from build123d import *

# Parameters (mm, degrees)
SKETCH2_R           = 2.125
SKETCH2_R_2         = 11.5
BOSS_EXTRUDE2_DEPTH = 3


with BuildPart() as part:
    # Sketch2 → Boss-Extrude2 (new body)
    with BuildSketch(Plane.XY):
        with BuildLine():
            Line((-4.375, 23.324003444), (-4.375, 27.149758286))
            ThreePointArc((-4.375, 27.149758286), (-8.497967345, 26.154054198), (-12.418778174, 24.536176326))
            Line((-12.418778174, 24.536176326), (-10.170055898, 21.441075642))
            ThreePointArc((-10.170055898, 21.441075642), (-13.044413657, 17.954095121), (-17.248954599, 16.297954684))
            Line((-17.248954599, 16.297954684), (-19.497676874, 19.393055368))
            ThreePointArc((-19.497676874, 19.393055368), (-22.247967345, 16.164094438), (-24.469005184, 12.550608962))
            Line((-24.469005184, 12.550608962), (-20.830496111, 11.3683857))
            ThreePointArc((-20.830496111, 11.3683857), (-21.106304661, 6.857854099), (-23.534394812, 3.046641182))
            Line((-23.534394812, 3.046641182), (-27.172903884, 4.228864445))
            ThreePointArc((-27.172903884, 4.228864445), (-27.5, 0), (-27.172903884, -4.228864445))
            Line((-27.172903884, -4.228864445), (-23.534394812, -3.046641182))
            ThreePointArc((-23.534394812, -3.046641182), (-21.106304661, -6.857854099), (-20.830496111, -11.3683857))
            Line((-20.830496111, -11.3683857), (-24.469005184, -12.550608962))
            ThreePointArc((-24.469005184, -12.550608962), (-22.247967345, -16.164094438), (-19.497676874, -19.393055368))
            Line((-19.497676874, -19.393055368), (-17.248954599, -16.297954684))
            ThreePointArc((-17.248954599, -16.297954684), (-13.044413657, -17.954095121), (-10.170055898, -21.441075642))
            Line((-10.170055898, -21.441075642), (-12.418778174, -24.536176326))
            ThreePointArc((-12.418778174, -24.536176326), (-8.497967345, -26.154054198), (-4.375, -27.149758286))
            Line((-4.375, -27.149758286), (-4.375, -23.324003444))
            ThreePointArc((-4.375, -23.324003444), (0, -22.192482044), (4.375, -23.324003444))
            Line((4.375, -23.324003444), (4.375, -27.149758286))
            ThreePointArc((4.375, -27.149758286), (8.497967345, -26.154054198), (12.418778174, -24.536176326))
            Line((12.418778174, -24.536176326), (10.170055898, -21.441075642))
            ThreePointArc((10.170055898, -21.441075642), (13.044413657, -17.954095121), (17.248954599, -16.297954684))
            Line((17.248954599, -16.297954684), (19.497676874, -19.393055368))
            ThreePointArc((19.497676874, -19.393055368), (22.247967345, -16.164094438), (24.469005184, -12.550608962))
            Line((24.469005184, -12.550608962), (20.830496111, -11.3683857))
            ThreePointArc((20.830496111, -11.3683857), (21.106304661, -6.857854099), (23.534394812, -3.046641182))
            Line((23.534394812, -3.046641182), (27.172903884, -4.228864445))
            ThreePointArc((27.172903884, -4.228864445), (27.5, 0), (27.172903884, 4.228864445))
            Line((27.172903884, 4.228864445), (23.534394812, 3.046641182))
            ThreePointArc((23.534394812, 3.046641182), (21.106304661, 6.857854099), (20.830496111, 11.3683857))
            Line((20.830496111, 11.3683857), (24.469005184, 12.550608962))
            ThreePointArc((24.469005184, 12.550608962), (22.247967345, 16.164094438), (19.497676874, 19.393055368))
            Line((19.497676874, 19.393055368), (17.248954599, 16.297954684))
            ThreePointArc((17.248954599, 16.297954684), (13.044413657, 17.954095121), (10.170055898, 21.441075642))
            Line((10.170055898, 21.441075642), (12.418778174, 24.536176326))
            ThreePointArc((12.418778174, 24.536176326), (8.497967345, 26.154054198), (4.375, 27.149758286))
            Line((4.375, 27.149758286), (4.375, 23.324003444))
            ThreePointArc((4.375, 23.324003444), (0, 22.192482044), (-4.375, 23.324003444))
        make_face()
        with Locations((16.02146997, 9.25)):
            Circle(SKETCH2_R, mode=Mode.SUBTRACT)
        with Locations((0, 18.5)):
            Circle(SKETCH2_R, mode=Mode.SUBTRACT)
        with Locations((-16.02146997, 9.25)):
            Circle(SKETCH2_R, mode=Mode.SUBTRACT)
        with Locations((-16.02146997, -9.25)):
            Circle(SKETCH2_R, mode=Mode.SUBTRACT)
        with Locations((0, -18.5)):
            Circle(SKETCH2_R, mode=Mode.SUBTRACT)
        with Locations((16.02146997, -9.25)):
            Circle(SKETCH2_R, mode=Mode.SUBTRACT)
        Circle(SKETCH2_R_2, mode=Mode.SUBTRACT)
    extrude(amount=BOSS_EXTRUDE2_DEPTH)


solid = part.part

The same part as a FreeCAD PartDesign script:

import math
import FreeCAD as App
import Part
import Sketcher
Q = App.Units.Quantity

doc = App.newDocument("Part")
body = doc.addObject("PartDesign::Body", "Body")

sketch1 = doc.addObject("Sketcher::SketchObject", "Sketch")
body.addObject(sketch1)
sketch1.AttachmentSupport = (doc.XY_Plane, [""])
sketch1.MapMode = "FlatFace"
sketch1.addGeometry([
    Part.LineSegment(App.Vector(-4.375, 23.324003, 0), App.Vector(-4.375, 27.149758, 0)),
    Part.ArcOfCircle(Part.Circle(App.Vector(0, 0, 0), App.Vector(0, 0, 1), 27.5), math.radians(99.154133), math.radians(116.845867)),
    Part.LineSegment(App.Vector(-12.418778, 24.536176, 0), App.Vector(-10.170056, 21.441076, 0)),
    Part.ArcOfCircle(Part.Circle(App.Vector(-18.348398, 25.254403, 0), App.Vector(0, 0, 1), 9.023676), math.radians(-83.001705), math.radians(-24.998295)),
    Part.LineSegment(App.Vector(-17.248955, 16.297955, 0), App.Vector(-19.497677, 19.393055, 0)),
    Part.ArcOfCircle(Part.Circle(App.Vector(0, 0, 0), App.Vector(0, 0, 1), 27.5), math.radians(135.154133), math.radians(152.845867)),
    Part.LineSegment(App.Vector(-24.469005, 12.550609, 0), App.Vector(-20.830496, 11.368386, 0)),
    Part.ArcOfCircle(Part.Circle(App.Vector(-29.688331, 9.646323, 0), App.Vector(0, 0, 1), 9.023676), math.radians(-47.001705), math.radians(11.001705)),
    Part.LineSegment(App.Vector(-23.534395, 3.046641, 0), App.Vector(-27.172904, 4.228864, 0)),
    Part.ArcOfCircle(Part.Circle(App.Vector(0, 0, 0), App.Vector(0, 0, 1), 27.5), math.radians(171.154133), math.radians(188.845867)),
    Part.LineSegment(App.Vector(-27.172904, -4.228864, 0), App.Vector(-23.534395, -3.046641, 0)),
    Part.ArcOfCircle(Part.Circle(App.Vector(-29.688331, -9.646323, 0), App.Vector(0, 0, 1), 9.023676), math.radians(-11.001705), math.radians(47.001705)),
    Part.LineSegment(App.Vector(-20.830496, -11.368386, 0), App.Vector(-24.469005, -12.550609, 0)),
    Part.ArcOfCircle(Part.Circle(App.Vector(0, 0, 0), App.Vector(0, 0, 1), 27.5), math.radians(-152.845867), math.radians(-135.154133)),
    Part.LineSegment(App.Vector(-19.497677, -19.393055, 0), App.Vector(-17.248955, -16.297955, 0)),
    Part.ArcOfCircle(Part.Circle(App.Vector(-18.348398, -25.254403, 0), App.Vector(0, 0, 1), 9.023676), math.radians(24.998295), math.radians(83.001705)),
    Part.LineSegment(App.Vector(-10.170056, -21.441076, 0), App.Vector(-12.418778, -24.536176, 0)),
    Part.ArcOfCircle(Part.Circle(App.Vector(0, 0, 0), App.Vector(0, 0, 1), 27.5), math.radians(-116.845867), math.radians(-99.154133)),
    Part.LineSegment(App.Vector(-4.375, -27.149758, 0), App.Vector(-4.375, -23.324003, 0)),
    Part.ArcOfCircle(Part.Circle(App.Vector(0, -31.216158, 0), App.Vector(0, 0, 1), 9.023676), math.radians(60.998295), math.radians(119.001705)),
    Part.LineSegment(App.Vector(4.375, -23.324003, 0), App.Vector(4.375, -27.149758, 0)),
    Part.ArcOfCircle(Part.Circle(App.Vector(0, 0, 0), App.Vector(0, 0, 1), 27.5), math.radians(-80.845867), math.radians(-63.154133)),
    Part.LineSegment(App.Vector(12.418778, -24.536176, 0), App.Vector(10.170056, -21.441076, 0)),
    Part.ArcOfCircle(Part.Circle(App.Vector(18.348398, -25.254403, 0), App.Vector(0, 0, 1), 9.023676), math.radians(96.998295), math.radians(155.001705)),
    Part.LineSegment(App.Vector(17.248955, -16.297955, 0), App.Vector(19.497677, -19.393055, 0)),
    Part.ArcOfCircle(Part.Circle(App.Vector(0, 0, 0), App.Vector(0, 0, 1), 27.5), math.radians(-44.845867), math.radians(-27.154133)),
    Part.LineSegment(App.Vector(24.469005, -12.550609, 0), App.Vector(20.830496, -11.368386, 0)),
    Part.ArcOfCircle(Part.Circle(App.Vector(29.688331, -9.646323, 0), App.Vector(0, 0, 1), 9.023676), math.radians(132.998295), math.radians(191.001705)),
    Part.LineSegment(App.Vector(23.534395, -3.046641, 0), App.Vector(27.172904, -4.228864, 0)),
    Part.ArcOfCircle(Part.Circle(App.Vector(0, 0, 0), App.Vector(0, 0, 1), 27.5), math.radians(-8.845867), math.radians(8.845867)),
    Part.LineSegment(App.Vector(27.172904, 4.228864, 0), App.Vector(23.534395, 3.046641, 0)),
    Part.ArcOfCircle(Part.Circle(App.Vector(29.688331, 9.646323, 0), App.Vector(0, 0, 1), 9.023676), math.radians(168.998295), math.radians(227.001705)),
    Part.LineSegment(App.Vector(20.830496, 11.368386, 0), App.Vector(24.469005, 12.550609, 0)),
    Part.ArcOfCircle(Part.Circle(App.Vector(0, 0, 0), App.Vector(0, 0, 1), 27.5), math.radians(27.154133), math.radians(44.845867)),
    Part.LineSegment(App.Vector(19.497677, 19.393055, 0), App.Vector(17.248955, 16.297955, 0)),
    Part.ArcOfCircle(Part.Circle(App.Vector(18.348398, 25.254403, 0), App.Vector(0, 0, 1), 9.023676), math.radians(-155.001705), math.radians(-96.998295)),
    Part.LineSegment(App.Vector(10.170056, 21.441076, 0), App.Vector(12.418778, 24.536176, 0)),
    Part.ArcOfCircle(Part.Circle(App.Vector(0, 0, 0), App.Vector(0, 0, 1), 27.5), math.radians(63.154133), math.radians(80.845867)),
    Part.LineSegment(App.Vector(4.375, 27.149758, 0), App.Vector(4.375, 23.324003, 0)),
    Part.ArcOfCircle(Part.Circle(App.Vector(0, 31.216158, 0), App.Vector(0, 0, 1), 9.023676), math.radians(-119.001705), math.radians(-60.998295)),
    Part.Circle(App.Vector(-16.02147, -9.25, 0), App.Vector(0, 0, 1), 2.125),
    Part.Circle(App.Vector(0, -18.5, 0), App.Vector(0, 0, 1), 2.125),
    Part.Circle(App.Vector(16.02147, -9.25, 0), App.Vector(0, 0, 1), 2.125),
    Part.Circle(App.Vector(-16.02147, 9.25, 0), App.Vector(0, 0, 1), 2.125),
    Part.Circle(App.Vector(0, 0, 0), App.Vector(0, 0, 1), 11.5),
    Part.Circle(App.Vector(16.02147, 9.25, 0), App.Vector(0, 0, 1), 2.125),
    Part.Circle(App.Vector(0, 18.5, 0), App.Vector(0, 0, 1), 2.125),
], False)
sketch1.addConstraint([
    Sketcher.Constraint("Coincident", 0, 2, 1, 1),
    Sketcher.Constraint("Coincident", 1, 2, 2, 1),
    Sketcher.Constraint("Coincident", 2, 2, 3, 2),
    Sketcher.Constraint("Coincident", 3, 1, 4, 1),
    Sketcher.Constraint("Coincident", 4, 2, 5, 1),
    Sketcher.Constraint("Coincident", 5, 2, 6, 1),
    Sketcher.Constraint("Coincident", 6, 2, 7, 2),
    Sketcher.Constraint("Coincident", 7, 1, 8, 1),
    Sketcher.Constraint("Coincident", 8, 2, 9, 1),
    Sketcher.Constraint("Coincident", 9, 2, 10, 1),
    Sketcher.Constraint("Coincident", 10, 2, 11, 2),
    Sketcher.Constraint("Coincident", 11, 1, 12, 1),
    Sketcher.Constraint("Coincident", 12, 2, 13, 1),
    Sketcher.Constraint("Coincident", 13, 2, 14, 1),
    Sketcher.Constraint("Coincident", 14, 2, 15, 2),
    Sketcher.Constraint("Coincident", 15, 1, 16, 1),
    Sketcher.Constraint("Coincident", 16, 2, 17, 1),
    Sketcher.Constraint("Coincident", 17, 2, 18, 1),
    Sketcher.Constraint("Coincident", 18, 2, 19, 2),
    Sketcher.Constraint("Coincident", 19, 1, 20, 1),
    Sketcher.Constraint("Coincident", 20, 2, 21, 1),
    Sketcher.Constraint("Coincident", 21, 2, 22, 1),
    Sketcher.Constraint("Coincident", 22, 2, 23, 2),
    Sketcher.Constraint("Coincident", 23, 1, 24, 1),
    Sketcher.Constraint("Coincident", 24, 2, 25, 1),
    Sketcher.Constraint("Coincident", 25, 2, 26, 1),
    Sketcher.Constraint("Coincident", 26, 2, 27, 2),
    Sketcher.Constraint("Coincident", 27, 1, 28, 1),
    Sketcher.Constraint("Coincident", 28, 2, 29, 1),
    Sketcher.Constraint("Coincident", 29, 2, 30, 1),
    Sketcher.Constraint("Coincident", 30, 2, 31, 2),
    Sketcher.Constraint("Coincident", 31, 1, 32, 1),
    Sketcher.Constraint("Coincident", 32, 2, 33, 1),
    Sketcher.Constraint("Coincident", 33, 2, 34, 1),
    Sketcher.Constraint("Coincident", 34, 2, 35, 2),
    Sketcher.Constraint("Coincident", 35, 1, 36, 1),
    Sketcher.Constraint("Coincident", 36, 2, 37, 1),
    Sketcher.Constraint("Coincident", 37, 2, 38, 1),
    Sketcher.Constraint("Coincident", 38, 2, 39, 2),
    Sketcher.Constraint("Coincident", 39, 1, 0, 1),
    Sketcher.Constraint("Vertical", 0),
    Sketcher.Constraint("Vertical", 18),
    Sketcher.Constraint("Vertical", 20),
    Sketcher.Constraint("Vertical", 38),
    Sketcher.Constraint("Coincident", 1, 3, -1, 1),
    Sketcher.Constraint("Coincident", 5, 3, -1, 1),
    Sketcher.Constraint("Coincident", 9, 3, -1, 1),
    Sketcher.Constraint("Coincident", 13, 3, -1, 1),
    Sketcher.Constraint("Coincident", 17, 3, -1, 1),
    Sketcher.Constraint("Coincident", 21, 3, -1, 1),
    Sketcher.Constraint("Coincident", 25, 3, -1, 1),
    Sketcher.Constraint("Coincident", 29, 3, -1, 1),
    Sketcher.Constraint("Coincident", 33, 3, -1, 1),
    Sketcher.Constraint("Coincident", 37, 3, -1, 1),
    Sketcher.Constraint("Coincident", 44, 3, -1, 1),
    Sketcher.Constraint("Equal", 1, 5),
    Sketcher.Constraint("Equal", 3, 7),
    Sketcher.Constraint("Equal", 5, 9),
    Sketcher.Constraint("Equal", 7, 11),
    Sketcher.Constraint("Equal", 9, 13),
    Sketcher.Constraint("Equal", 11, 15),
    Sketcher.Constraint("Equal", 13, 17),
    Sketcher.Constraint("Equal", 15, 19),
    Sketcher.Constraint("Equal", 17, 21),
    Sketcher.Constraint("Equal", 19, 23),
    Sketcher.Constraint("Equal", 21, 25),
    Sketcher.Constraint("Equal", 23, 27),
    Sketcher.Constraint("Equal", 25, 29),
    Sketcher.Constraint("Equal", 27, 31),
    Sketcher.Constraint("Equal", 29, 33),
    Sketcher.Constraint("Equal", 31, 35),
    Sketcher.Constraint("Equal", 33, 37),
    Sketcher.Constraint("Equal", 35, 39),
    Sketcher.Constraint("Equal", 40, 41),
    Sketcher.Constraint("Equal", 41, 42),
    Sketcher.Constraint("Equal", 42, 43),
    Sketcher.Constraint("Equal", 43, 45),
    Sketcher.Constraint("Equal", 45, 46),
    Sketcher.Constraint("Symmetric", 3, 3, 23, 3, -1, 1),
    Sketcher.Constraint("Symmetric", 7, 3, 27, 3, -1, 1),
    Sketcher.Constraint("Symmetric", 11, 3, 31, 3, -1, 1),
    Sketcher.Constraint("Symmetric", 15, 3, 35, 3, -1, 1),
    Sketcher.Constraint("Symmetric", 19, 3, 39, 3, -1, 1),
    Sketcher.Constraint("Symmetric", 42, 3, 43, 3, -1, 1),
    Sketcher.Constraint("Symmetric", 40, 3, 45, 3, -1, 1),
    Sketcher.Constraint("Symmetric", 41, 3, 46, 3, -1, 1),
    Sketcher.Constraint("Symmetric", 15, 3, 23, 3, -2),
    Sketcher.Constraint("Symmetric", 11, 3, 27, 3, -2),
    Sketcher.Constraint("Symmetric", 40, 3, 42, 3, -2),
    Sketcher.Constraint("Symmetric", 18, 2, 19, 1, -2),
    Sketcher.Constraint("PointOnObject", 41, 3, -2),
    Sketcher.Constraint("Parallel", 2, 4),
    Sketcher.Constraint("Parallel", 6, 8),
    Sketcher.Constraint("Parallel", 10, 12),
    Sketcher.Constraint("Parallel", 14, 16),
    Sketcher.Constraint("Parallel", 4, 22),
    Sketcher.Constraint("Parallel", 22, 24),
    Sketcher.Constraint("Parallel", 8, 26),
    Sketcher.Constraint("Parallel", 26, 28),
    Sketcher.Constraint("Parallel", 12, 30),
    Sketcher.Constraint("Parallel", 30, 32),
    Sketcher.Constraint("Parallel", 16, 34),
    Sketcher.Constraint("Parallel", 34, 36),
    Sketcher.Constraint("Horizontal", 16, 2, 21, 2),
    Sketcher.Constraint("Horizontal", 15, 1, 22, 2),
    Sketcher.Constraint("Horizontal", 14, 2, 23, 1),
    Sketcher.Constraint("Horizontal", 12, 2, 25, 2),
    Sketcher.Constraint("Horizontal", 11, 1, 26, 2),
    Sketcher.Constraint("Horizontal", 10, 2, 27, 1),
    Sketcher.Constraint("Horizontal", 8, 2, 29, 2),
    Sketcher.Constraint("Horizontal", 6, 2, 31, 1),
    Sketcher.Constraint("Horizontal", 4, 2, 33, 2),
    Sketcher.Constraint("Horizontal", 2, 2, 35, 1),
    Sketcher.Constraint("Horizontal", 0, 2, 37, 2),
    Sketcher.Constraint("Vertical", 8, 2, 9, 2),
    Sketcher.Constraint("Vertical", 6, 2, 11, 1),
    Sketcher.Constraint("Vertical", 4, 2, 13, 2),
    Sketcher.Constraint("Vertical", 2, 2, 15, 1),
    Sketcher.Constraint("Vertical", 0, 2, 17, 2),
    Sketcher.Constraint("Equal", 2, 4),
    Sketcher.Constraint("Equal", 4, 6),
    Sketcher.Constraint("Equal", 6, 8),
    Sketcher.Constraint("Diameter", 44, 23.0),
    Sketcher.Constraint("Radius", 1, 27.5),
    Sketcher.Constraint("Diameter", 40, 4.25),
    Sketcher.Constraint("Angle", 2, Q("-54 deg")),
    Sketcher.Constraint("Angle", 6, Q("-18 deg")),
    Sketcher.Constraint("DistanceY", 41, 3, -1, 1, 18.5),
    Sketcher.Constraint("DistanceY", 40, 3, -1, 1, 9.25),
    Sketcher.Constraint("DistanceX", 0, 2, -1, 1, 4.375),
    Sketcher.Constraint("Radius", 3, 9.023676),
    Sketcher.Constraint("DistanceY", 0, 1, 0, 2, 3.825755),
    Sketcher.Constraint("DistanceX", 7, 3, -1, 1, 29.688331),
    Sketcher.Constraint("DistanceX", 40, 3, -1, 1, 16.02147),
    Sketcher.Constraint("DistanceX", 1, 2, -1, 1, 12.418778),
    Sketcher.Constraint("DistanceY", -1, 1, 5, 2, 12.550609),
    Sketcher.Constraint("DistanceY", -1, 1, 7, 1, 3.046641),
    Sketcher.Constraint("DistanceX", 3, 3, -1, 1, 18.348398),
])
pad1 = doc.addObject("PartDesign::Pad", "Pad")
body.addObject(pad1)
pad1.Profile = sketch1
pad1.Length = 3

doc.recompute()
